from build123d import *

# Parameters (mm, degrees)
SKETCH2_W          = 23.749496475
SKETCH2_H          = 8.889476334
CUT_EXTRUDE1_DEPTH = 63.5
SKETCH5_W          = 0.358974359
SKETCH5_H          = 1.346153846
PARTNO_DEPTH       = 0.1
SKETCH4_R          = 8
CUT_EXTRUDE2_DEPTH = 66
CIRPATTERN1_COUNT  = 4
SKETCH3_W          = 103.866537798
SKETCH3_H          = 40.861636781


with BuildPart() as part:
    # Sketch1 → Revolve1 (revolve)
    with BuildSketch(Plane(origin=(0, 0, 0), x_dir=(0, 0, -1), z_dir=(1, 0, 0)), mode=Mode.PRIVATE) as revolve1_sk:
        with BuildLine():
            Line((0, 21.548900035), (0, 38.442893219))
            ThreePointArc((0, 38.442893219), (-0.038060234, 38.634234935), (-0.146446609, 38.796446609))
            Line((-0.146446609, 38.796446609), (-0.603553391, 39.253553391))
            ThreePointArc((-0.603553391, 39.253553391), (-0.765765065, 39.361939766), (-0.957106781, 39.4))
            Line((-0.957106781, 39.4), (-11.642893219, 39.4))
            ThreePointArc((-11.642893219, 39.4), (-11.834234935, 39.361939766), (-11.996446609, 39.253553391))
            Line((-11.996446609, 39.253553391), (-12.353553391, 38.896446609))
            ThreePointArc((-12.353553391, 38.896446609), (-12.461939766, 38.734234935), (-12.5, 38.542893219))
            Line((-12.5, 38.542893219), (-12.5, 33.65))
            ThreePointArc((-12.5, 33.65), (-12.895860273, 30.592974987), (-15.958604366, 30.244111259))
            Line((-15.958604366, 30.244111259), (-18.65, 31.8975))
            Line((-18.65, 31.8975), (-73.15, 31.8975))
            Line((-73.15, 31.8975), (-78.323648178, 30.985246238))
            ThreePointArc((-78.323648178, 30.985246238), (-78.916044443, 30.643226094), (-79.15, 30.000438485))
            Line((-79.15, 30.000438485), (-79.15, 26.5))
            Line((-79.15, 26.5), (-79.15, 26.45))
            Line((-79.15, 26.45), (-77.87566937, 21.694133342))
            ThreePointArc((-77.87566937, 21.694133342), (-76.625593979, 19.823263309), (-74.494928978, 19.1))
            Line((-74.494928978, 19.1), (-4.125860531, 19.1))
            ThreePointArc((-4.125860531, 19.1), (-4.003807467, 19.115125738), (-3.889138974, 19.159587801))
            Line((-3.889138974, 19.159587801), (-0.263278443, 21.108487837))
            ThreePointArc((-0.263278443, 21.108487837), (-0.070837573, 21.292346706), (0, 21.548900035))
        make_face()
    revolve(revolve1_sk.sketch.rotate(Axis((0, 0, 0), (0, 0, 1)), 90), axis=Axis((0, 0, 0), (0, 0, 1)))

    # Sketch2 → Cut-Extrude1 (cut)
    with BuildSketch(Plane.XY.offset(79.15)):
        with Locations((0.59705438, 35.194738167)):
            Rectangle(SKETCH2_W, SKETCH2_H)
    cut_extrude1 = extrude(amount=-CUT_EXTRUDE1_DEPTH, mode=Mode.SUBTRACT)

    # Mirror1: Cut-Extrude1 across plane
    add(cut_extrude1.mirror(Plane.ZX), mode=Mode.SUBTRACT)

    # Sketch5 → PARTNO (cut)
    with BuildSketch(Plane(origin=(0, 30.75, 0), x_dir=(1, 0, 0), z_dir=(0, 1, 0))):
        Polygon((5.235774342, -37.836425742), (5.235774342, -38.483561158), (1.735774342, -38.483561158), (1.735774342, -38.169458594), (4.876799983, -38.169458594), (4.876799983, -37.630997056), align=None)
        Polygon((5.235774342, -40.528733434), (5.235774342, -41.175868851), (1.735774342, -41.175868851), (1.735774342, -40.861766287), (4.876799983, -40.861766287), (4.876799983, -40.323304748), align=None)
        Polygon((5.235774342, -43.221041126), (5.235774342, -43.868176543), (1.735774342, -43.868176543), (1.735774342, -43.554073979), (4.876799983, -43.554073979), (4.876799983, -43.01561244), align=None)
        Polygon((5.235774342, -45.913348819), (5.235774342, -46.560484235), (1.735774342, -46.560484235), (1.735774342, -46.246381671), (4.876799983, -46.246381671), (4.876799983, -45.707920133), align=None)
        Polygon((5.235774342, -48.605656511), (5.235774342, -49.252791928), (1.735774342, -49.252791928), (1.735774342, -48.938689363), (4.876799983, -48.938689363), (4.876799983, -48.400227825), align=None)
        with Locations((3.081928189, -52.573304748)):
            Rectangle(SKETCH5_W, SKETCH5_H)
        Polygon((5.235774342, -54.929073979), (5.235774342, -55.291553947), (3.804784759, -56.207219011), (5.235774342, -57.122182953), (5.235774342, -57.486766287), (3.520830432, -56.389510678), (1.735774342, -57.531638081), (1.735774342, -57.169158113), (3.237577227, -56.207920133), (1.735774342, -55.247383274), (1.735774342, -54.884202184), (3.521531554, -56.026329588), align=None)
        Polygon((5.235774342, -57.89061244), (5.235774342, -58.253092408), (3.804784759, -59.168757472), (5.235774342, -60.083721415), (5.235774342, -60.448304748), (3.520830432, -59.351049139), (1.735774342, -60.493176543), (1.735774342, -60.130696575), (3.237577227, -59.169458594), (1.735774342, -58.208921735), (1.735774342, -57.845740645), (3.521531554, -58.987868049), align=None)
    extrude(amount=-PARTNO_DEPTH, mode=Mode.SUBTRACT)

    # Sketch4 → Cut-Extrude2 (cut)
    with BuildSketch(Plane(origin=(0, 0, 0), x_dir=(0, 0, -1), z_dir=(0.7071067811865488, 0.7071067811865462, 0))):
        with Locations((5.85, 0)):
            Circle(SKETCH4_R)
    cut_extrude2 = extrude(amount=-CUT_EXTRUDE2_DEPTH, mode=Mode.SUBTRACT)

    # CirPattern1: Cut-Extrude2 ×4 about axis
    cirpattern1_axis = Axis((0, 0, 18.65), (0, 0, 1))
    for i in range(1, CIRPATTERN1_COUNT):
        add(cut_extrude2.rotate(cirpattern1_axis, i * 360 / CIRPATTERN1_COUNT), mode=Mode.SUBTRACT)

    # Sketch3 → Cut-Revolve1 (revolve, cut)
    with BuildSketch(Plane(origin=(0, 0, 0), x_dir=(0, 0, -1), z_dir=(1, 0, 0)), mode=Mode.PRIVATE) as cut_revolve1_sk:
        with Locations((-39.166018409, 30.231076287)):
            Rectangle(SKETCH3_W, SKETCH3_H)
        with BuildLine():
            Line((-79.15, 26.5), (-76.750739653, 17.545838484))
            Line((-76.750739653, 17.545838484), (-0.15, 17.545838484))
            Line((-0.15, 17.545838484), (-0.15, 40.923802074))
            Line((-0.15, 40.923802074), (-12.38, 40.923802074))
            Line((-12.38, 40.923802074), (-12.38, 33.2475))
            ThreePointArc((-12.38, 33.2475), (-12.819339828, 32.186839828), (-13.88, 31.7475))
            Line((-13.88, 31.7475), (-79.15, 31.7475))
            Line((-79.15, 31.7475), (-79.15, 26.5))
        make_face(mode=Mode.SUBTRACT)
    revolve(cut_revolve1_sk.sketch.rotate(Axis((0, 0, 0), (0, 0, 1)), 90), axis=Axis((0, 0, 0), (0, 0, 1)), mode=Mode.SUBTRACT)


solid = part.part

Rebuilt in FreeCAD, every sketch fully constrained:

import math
import FreeCAD as App
import Part
import Sketcher

V = App.Vector
Q = App.Units.Quantity


def add_polygon(sketch, points):
    """Adds a closed chain of lines whose ends are joined by coincident constraints."""
    first, n = sketch.GeometryCount, len(points)
    for a, b in zip(points, points[1:] + points[:1]):
        sketch.addGeometry(Part.LineSegment(App.Vector(*a, 0), App.Vector(*b, 0)), False)
    for i in range(n):
        sketch.addConstraint(Sketcher.Constraint("Coincident", first + i, 2, first + (i + 1) % n, 1))

doc = App.newDocument("Part")
params = doc.addObject("Spreadsheet::Sheet", "Params")
for row, (alias, value) in enumerate([
    ("sketch1_radius", "1 mm"),
    ("sketch1_radius2", "0.5 mm"),
    ("sketch1_radius3", "2.5 mm"),
    ("sketch1_radius4", "3.5 mm"),
    ("sketch1_height", "54.5 mm"),
    ("revolution_angle", "360 deg"),
    ("pocket1_length", "63.5 mm"),
    ("sketch3_width", "3.5 mm"),
    ("pocket2_length", "0.1 mm"),
    ("sketch4_diameter", "16 mm"),
    ("pocket3_length", "66 mm"),
    ("sketch5_radius", "1.5 mm"),
    ("sketch5_height", "65.27 mm"),
    ("sketch5_height2", "12.23 mm"),
    ("groove_angle", "360 deg"),
], start=1):
    params.set(f"A{row}", alias)
    params.set(f"B{row}", "=" + value)
    params.setAlias(f"B{row}", alias)

body = doc.addObject("PartDesign::Body", "Body")

# Sketch on YZ plane
sketch1 = body.newObject("Sketcher::SketchObject", "Sketch")
sketch1.AttachmentSupport = (doc.getObject("YZ_Plane"), [""])
sketch1.MapMode = "FlatFace"
sketch1.addGeometry(Part.LineSegment(V(21.55, 0, 0), V(38.44, 0, 0)), False)
sketch1.addGeometry(Part.ArcOfCircle(Part.Circle(V(38.44, 0.5, 0), V(0, 0, 1), 0.5), math.radians(-90), math.radians(-45)), False)
sketch1.addGeometry(Part.LineSegment(V(38.8, 0.15, 0), V(39.25, 0.6, 0)), False)
sketch1.addGeometry(Part.ArcOfCircle(Part.Circle(V(38.9, 0.96, 0), V(0, 0, 1), 0.5), math.radians(-45), math.radians(0)), False)
sketch1.addGeometry(Part.LineSegment(V(39.4, 0.96, 0), V(39.4, 11.64, 0)), False)
sketch1.addGeometry(Part.ArcOfCircle(Part.Circle(V(38.9, 11.64, 0), V(0, 0, 1), 0.5), math.radians(0), math.radians(45)), False)
sketch1.addGeometry(Part.LineSegment(V(39.25, 12, 0), V(38.9, 12.35, 0)), False)
sketch1.addGeometry(Part.ArcOfCircle(Part.Circle(V(38.54, 12, 0), V(0, 0, 1), 0.5), math.radians(45), math.radians(90)), False)
sketch1.addGeometry(Part.LineSegment(V(38.54, 12.5, 0), V(33.65, 12.5, 0)), False)
sketch1.addGeometry(Part.ArcOfCircle(Part.Circle(V(32.37, 14.65, 0), V(0, 0, 1), 2.5), math.radians(148), math.radians(301)), False)
sketch1.addGeometry(Part.LineSegment(V(30.24, 15.96, 0), V(31.9, 18.65, 0)), False)
sketch1.addGeometry(Part.LineSegment(V(31.9, 18.65, 0), V(31.9, 73.15, 0)), False)
sketch1.addGeometry(Part.LineSegment(V(31.9, 73.15, 0), V(30.99, 78.32, 0)), False)
sketch1.addGeometry(Part.ArcOfCircle(Part.Circle(V(30, 78.15, 0), V(0, 0, 1), 1), math.radians(10), math.radians(90)), False)
sketch1.addGeometry(Part.LineSegment(V(30, 79.15, 0), V(26.45, 79.15, 0)), False)
sketch1.addGeometry(Part.LineSegment(V(26.45, 79.15, 0), V(21.69, 77.88, 0)), False)
sketch1.addGeometry(Part.ArcOfCircle(Part.Circle(V(22.6, 74.49, 0), V(0, 0, 1), 3.5), math.radians(105), math.radians(180)), False)
sketch1.addGeometry(Part.LineSegment(V(19.1, 74.49, 0), V(19.1, 4.13, 0)), False)
sketch1.addGeometry(Part.ArcOfCircle(Part.Circle(V(19.6, 4.13, 0), V(0, 0, 1), 0.5), math.radians(180), math.radians(208)), False)
sketch1.addGeometry(Part.LineSegment(V(19.16, 3.89, 0), V(21.11, 0.26, 0)), False)
sketch1.addGeometry(Part.ArcOfCircle(Part.Circle(V(21.55, 0.5, 0), V(0, 0, 1), 0.5), math.radians(-152), math.radians(-90)), False)
sketch1.addConstraint(Sketcher.Constraint("Tangent", 0, 2, 1, 1))
sketch1.addConstraint(Sketcher.Constraint("Tangent", 1, 2, 2, 1))
sketch1.addConstraint(Sketcher.Constraint("Tangent", 2, 2, 3, 1))
sketch1.addConstraint(Sketcher.Constraint("Tangent", 3, 2, 4, 1))
sketch1.addConstraint(Sketcher.Constraint("Tangent", 4, 2, 5, 1))
sketch1.addConstraint(Sketcher.Constraint("Tangent", 5, 2, 6, 1))
sketch1.addConstraint(Sketcher.Constraint("Tangent", 6, 2, 7, 1))
sketch1.addConstraint(Sketcher.Constraint("Tangent", 7, 2, 8, 1))
sketch1.addConstraint(Sketcher.Constraint("Coincident", 8, 2, 9, 2))
sketch1.addConstraint(Sketcher.Constraint("Tangent", 9, 1, 10, 1))
sketch1.addConstraint(Sketcher.Constraint("Coincident", 10, 2, 11, 1))
sketch1.addConstraint(Sketcher.Constraint("Coincident", 11, 2, 12, 1))
sketch1.addConstraint(Sketcher.Constraint("Tangent", 12, 2, 13, 1))
sketch1.addConstraint(Sketcher.Constraint("Tangent", 13, 2, 14, 1))
sketch1.addConstraint(Sketcher.Constraint("Coincident", 14, 2, 15, 1))
sketch1.addConstraint(Sketcher.Constraint("Tangent", 15, 2, 16, 1))
sketch1.addConstraint(Sketcher.Constraint("Tangent", 16, 2, 17, 1))
sketch1.addConstraint(Sketcher.Constraint("Tangent", 17, 2, 18, 1))
sketch1.addConstraint(Sketcher.Constraint("Tangent", 18, 2, 19, 1))
sketch1.addConstraint(Sketcher.Constraint("Tangent", 19, 2, 20, 1))
sketch1.addConstraint(Sketcher.Constraint("Tangent", 20, 2, 0, 1))
sketch1.addConstraint(Sketcher.Constraint("Horizontal", 0))
sketch1.addConstraint(Sketcher.Constraint("Vertical", 4))
sketch1.addConstraint(Sketcher.Constraint("Horizontal", 8))
sketch1.addConstraint(Sketcher.Constraint("Vertical", 11))
sketch1.addConstraint(Sketcher.Constraint("Horizontal", 14))
sketch1.addConstraint(Sketcher.Constraint("Vertical", 17))
sketch1.addConstraint(Sketcher.Constraint("Equal", 1, 3))
sketch1.addConstraint(Sketcher.Constraint("Equal", 3, 5))
sketch1.addConstraint(Sketcher.Constraint("Equal", 5, 7))
sketch1.addConstraint(Sketcher.Constraint("Equal", 7, 18))
sketch1.addConstraint(Sketcher.Constraint("Equal", 18, 20))
sketch1.addConstraint(Sketcher.Constraint("PointOnObject", 0, 2, -1))
sketch1.addConstraint(Sketcher.Constraint("Perpendicular", 2, 6))
sketch1.addConstraint(Sketcher.Constraint("Vertical", 2, 2, 5, 2))
sketch1.addConstraint(Sketcher.Constraint("Radius", 13, 1.0))
sketch1.addConstraint(Sketcher.Constraint("Radius", 1, 0.5))
sketch1.addConstraint(Sketcher.Constraint("Radius", 9, 2.5))
sketch1.addConstraint(Sketcher.Constraint("Radius", 16, 3.5))
sketch1.addConstraint(Sketcher.Constraint("Angle", 12, Q("100 deg")))
sketch1.addConstraint(Sketcher.Constraint("Angle", 15, Q("-165 deg")))
sketch1.addConstraint(Sketcher.Constraint("DistanceY", 11, 1, 11, 2, 54.5))
sketch1.addConstraint(Sketcher.Constraint("DistanceY", -1, 1, 7, 3, 12.0))
sketch1.addConstraint(Sketcher.Constraint("DistanceY", 9, 3, 10, 2, 4.0))
sketch1.addConstraint(Sketcher.Constraint("DistanceY", 11, 2, 13, 3, 5.0))
sketch1.addConstraint(Sketcher.Constraint("DistanceX", -1, 1, 3, 3, 38.9))
sketch1.addConstraint(Sketcher.Constraint("DistanceX", -1, 1, 16, 3, 22.6))
sketch1.addConstraint(Sketcher.Constraint("DistanceX", 1, 3, 7, 3, 0.1))
sketch1.addConstraint(Sketcher.Constraint("DistanceY", -1, 1, 9, 3, 14.65))
sketch1.addConstraint(Sketcher.Constraint("DistanceX", -1, 1, 8, 2, 33.65))
sketch1.addConstraint(Sketcher.Constraint("DistanceX", -1, 1, 14, 2, 26.45))
sketch1.addConstraint(Sketcher.Constraint("DistanceX", 14, 2, 14, 1, 3.550438))
sketch1.addConstraint(Sketcher.Constraint("DistanceY", 17, 2, 17, 1, 70.369068))
sketch1.addConstraint(Sketcher.Constraint("DistanceX", -1, 1, 20, 3, 21.5489))
sketch1.addConstraint(Sketcher.Constraint("DistanceX", 0, 1, 0, 2, 16.893993))
sketch1.setExpression("Constraints[35]", "Params.sketch1_radius")
sketch1.setExpression("Constraints[36]", "Params.sketch1_radius2")
sketch1.setExpression("Constraints[37]", "Params.sketch1_radius3")
sketch1.setExpression("Constraints[38]", "Params.sketch1_radius4")
sketch1.setExpression("Constraints[41]", "Params.sketch1_height")
revolution = body.newObject("PartDesign::Revolution", "Revolution")
revolution.Profile = sketch1
revolution.ReferenceAxis = (sketch1, ["V_Axis"])
revolution.setExpression("Angle", "Params.revolution_angle")

# Sketch on XY plane
sketch2 = body.newObject("Sketcher::SketchObject", "Sketch001")
sketch2.AttachmentSupport = (doc.getObject("XY_Plane"), [""])
sketch2.MapMode = "FlatFace"
sketch2.AttachmentOffset = App.Placement(V(0, 0, 79.15), App.Rotation())
add_polygon(sketch2, [(-11, 40), (-11, 31), (12, 31), (12, 40)])  # lines 0-3
sketch2.addConstraint(Sketcher.Constraint("Vertical", 0))
sketch2.addConstraint(Sketcher.Constraint("Horizontal", 1))
sketch2.addConstraint(Sketcher.Constraint("Vertical", 2))
sketch2.addConstraint(Sketcher.Constraint("Horizontal", 3))
sketch2.addConstraint(Sketcher.Constraint("DistanceY", -1, 1, 0, 2, 30.75))
sketch2.addConstraint(Sketcher.Constraint("DistanceX", 1, 1, 1, 2, 23.749496))
sketch2.addConstraint(Sketcher.Constraint("DistanceY", 0, 2, 0, 1, 8.889476))
sketch2.addConstraint(Sketcher.Constraint("DistanceX", 0, 2, -1, 1, 11.277694))
pocket1 = body.newObject("PartDesign::Pocket", "Pocket")
pocket1.Profile = sketch2
pocket1.setExpression("Length", "Params.pocket1_length")
doc.recompute()

mirrored = body.newObject("PartDesign::Mirrored", "Mirrored")
mirrored.Originals = [pocket1]
mirrored.MirrorPlane = (doc.getObject("XZ_Plane"), [""])
body.Tip = mirrored

# Sketch on XZ plane
sketch3 = body.newObject("Sketcher::SketchObject", "Sketch002")
sketch3.AttachmentSupport = (doc.getObject("XZ_Plane"), [""])
sketch3.MapMode = "FlatFace"
sketch3.AttachmentOffset = App.Placement(V(0, 0, -30.75), App.Rotation())
add_polygon(sketch3, [(5.24, 38.48), (5.24, 37.84), (4.88, 37.63), (4.88, 38.17), (1.74, 38.17), (1.74, 38.48)])  # lines 0-5
add_polygon(sketch3, [(5.24, 41.18), (5.24, 40.53), (4.88, 40.32), (4.88, 40.86), (1.74, 40.86), (1.74, 41.18)])  # lines 6-11
add_polygon(sketch3, [(5.24, 43.87), (5.24, 43.22), (4.88, 43.02), (4.88, 43.55), (1.74, 43.55), (1.74, 43.87)])  # lines 12-17
add_polygon(sketch3, [(5.24, 46.56), (5.24, 45.91), (4.88, 45.71), (4.88, 46.25), (1.74, 46.25), (1.74, 46.56)])  # lines 18-23
add_polygon(sketch3, [(5.24, 49.25), (5.24, 48.61), (4.88, 48.4), (4.88, 48.94), (1.74, 48.94), (1.74, 49.25)])  # lines 24-29
add_polygon(sketch3, [(2.9, 51.9), (2.9, 53.25), (3.26, 53.25), (3.26, 51.9)])  # lines 30-33
add_polygon(sketch3, [(5.24, 55.29), (5.24, 54.93), (3.52, 56.03), (1.74, 54.88), (1.74, 55.25), (3.24, 56.21), (1.74, 57.17), (1.74, 57.53), (3.52, 56.39), (5.24, 57.49), (5.24, 57.12), (3.8, 56.21)])  # lines 34-45
add_polygon(sketch3, [(5.24, 58.25), (5.24, 57.89), (3.52, 58.99), (1.74, 57.85), (1.74, 58.21), (3.24, 59.17), (1.74, 60.13), (1.74, 60.49), (3.52, 59.35), (5.24, 60.45), (5.24, 60.08), (3.8, 59.17)])  # lines 46-57
sketch3.addConstraint(Sketcher.Constraint("Vertical", 0))
sketch3.addConstraint(Sketcher.Constraint("Vertical", 2))
sketch3.addConstraint(Sketcher.Constraint("Horizontal", 3))
sketch3.addConstraint(Sketcher.Constraint("Vertical", 4))
sketch3.addConstraint(Sketcher.Constraint("Horizontal", 5))
sketch3.addConstraint(Sketcher.Constraint("Vertical", 6))
sketch3.addConstraint(Sketcher.Constraint("Vertical", 8))
sketch3.addConstraint(Sketcher.Constraint("Horizontal", 9))
sketch3.addConstraint(Sketcher.Constraint("Vertical", 10))
sketch3.addConstraint(Sketcher.Constraint("Horizontal", 11))
sketch3.addConstraint(Sketcher.Constraint("Vertical", 12))
sketch3.addConstraint(Sketcher.Constraint("Vertical", 14))
sketch3.addConstraint(Sketcher.Constraint("Horizontal", 15))
sketch3.addConstraint(Sketcher.Constraint("Vertical", 16))
sketch3.addConstraint(Sketcher.Constraint("Horizontal", 17))
sketch3.addConstraint(Sketcher.Constraint("Vertical", 18))
sketch3.addConstraint(Sketcher.Constraint("Vertical", 20))
sketch3.addConstraint(Sketcher.Constraint("Horizontal", 21))
sketch3.addConstraint(Sketcher.Constraint("Vertical", 22))
sketch3.addConstraint(Sketcher.Constraint("Horizontal", 23))
sketch3.addConstraint(Sketcher.Constraint("Vertical", 24))
sketch3.addConstraint(Sketcher.Constraint("Vertical", 26))
sketch3.addConstraint(Sketcher.Constraint("Horizontal", 27))
sketch3.addConstraint(Sketcher.Constraint("Vertical", 28))
sketch3.addConstraint(Sketcher.Constraint("Horizontal", 29))
sketch3.addConstraint(Sketcher.Constraint("Vertical", 30))
sketch3.addConstraint(Sketcher.Constraint("Horizontal", 31))
sketch3.addConstraint(Sketcher.Constraint("Vertical", 32))
sketch3.addConstraint(Sketcher.Constraint("Horizontal", 33))
sketch3.addConstraint(Sketcher.Constraint("Vertical", 34))
sketch3.addConstraint(Sketcher.Constraint("Vertical", 37))
sketch3.addConstraint(Sketcher.Constraint("Vertical", 40))
sketch3.addConstraint(Sketcher.Constraint("Vertical", 43))
sketch3.addConstraint(Sketcher.Constraint("Vertical", 46))
sketch3.addConstraint(Sketcher.Constraint("Vertical", 49))
sketch3.addConstraint(Sketcher.Constraint("Vertical", 52))
sketch3.addConstraint(Sketcher.Constraint("Vertical", 55))
sketch3.addConstraint(Sketcher.Constraint("Parallel", 1, 7))
sketch3.addConstraint(Sketcher.Constraint("Parallel", 7, 13))
sketch3.addConstraint(Sketcher.Constraint("Parallel", 13, 19))
sketch3.addConstraint(Sketcher.Constraint("Parallel", 19, 25))
sketch3.addConstraint(Sketcher.Constraint("Parallel", 35, 47))
sketch3.addConstraint(Sketcher.Constraint("Parallel", 36, 48))
sketch3.addConstraint(Sketcher.Constraint("Parallel", 38, 50))
sketch3.addConstraint(Sketcher.Constraint("Parallel", 39, 51))
sketch3.addConstraint(Sketcher.Constraint("Parallel", 41, 53))
sketch3.addConstraint(Sketcher.Constraint("Parallel", 42, 54))
sketch3.addConstraint(Sketcher.Constraint("Parallel", 44, 56))
sketch3.addConstraint(Sketcher.Constraint("Parallel", 45, 57))
sketch3.addConstraint(Sketcher.Constraint("Vertical", 5, 2, 6, 2))
sketch3.addConstraint(Sketcher.Constraint("Vertical", 2, 2, 7, 2))
sketch3.addConstraint(Sketcher.Constraint("Vertical", 4, 2, 9, 2))
sketch3.addConstraint(Sketcher.Constraint("Vertical", 11, 2, 12, 2))
sketch3.addConstraint(Sketcher.Constraint("Vertical", 8, 2, 13, 2))
sketch3.addConstraint(Sketcher.Constraint("Vertical", 10, 2, 15, 2))
sketch3.addConstraint(Sketcher.Constraint("Vertical", 17, 2, 18, 2))
sketch3.addConstraint(Sketcher.Constraint("Vertical", 14, 2, 19, 2))
sketch3.addConstraint(Sketcher.Constraint("Vertical", 16, 2, 21, 2))
sketch3.addConstraint(Sketcher.Constraint("Vertical", 23, 2, 24, 2))
sketch3.addConstraint(Sketcher.Constraint("Vertical", 20, 2, 25, 2))
sketch3.addConstraint(Sketcher.Constraint("Vertical", 22, 2, 27, 2))
sketch3.addConstraint(Sketcher.Constraint("Vertical", 29, 2, 34, 2))
sketch3.addConstraint(Sketcher.Constraint("Vertical", 28, 2, 36, 2))
sketch3.addConstraint(Sketcher.Constraint("Vertical", 37, 2, 39, 2))
sketch3.addConstraint(Sketcher.Constraint("Vertical", 34, 2, 42, 2))
sketch3.addConstraint(Sketcher.Constraint("Vertical", 45, 2, 46, 2))
sketch3.addConstraint(Sketcher.Constraint("Vertical", 35, 2, 47, 2))
sketch3.addConstraint(Sketcher.Constraint("Vertical", 40, 2, 48, 2))
sketch3.addConstraint(Sketcher.Constraint("Vertical", 38, 2, 50, 2))
sketch3.addConstraint(Sketcher.Constraint("Vertical", 49, 2, 51, 2))
sketch3.addConstraint(Sketcher.Constraint("Vertical", 41, 2, 53, 2))
sketch3.addConstraint(Sketcher.Constraint("Vertical", 46, 2, 54, 2))
sketch3.addConstraint(Sketcher.Constraint("Vertical", 44, 2, 56, 2))
sketch3.addConstraint(Sketcher.Constraint("Equal", 0, 6))
sketch3.addConstraint(Sketcher.Constraint("Equal", 2, 8))
sketch3.addConstraint(Sketcher.Constraint("Equal", 6, 12))
sketch3.addConstraint(Sketcher.Constraint("Equal", 8, 14))
sketch3.addConstraint(Sketcher.Constraint("Equal", 12, 18))
sketch3.addConstraint(Sketcher.Constraint("Equal", 14, 20))
sketch3.addConstraint(Sketcher.Constraint("Equal", 18, 24))
sketch3.addConstraint(Sketcher.Constraint("Equal", 20, 26))
sketch3.addConstraint(Sketcher.Constraint("Equal", 34, 40))
sketch3.addConstraint(Sketcher.Constraint("Equal", 40, 46))
sketch3.addConstraint(Sketcher.Constraint("Equal", 37, 49))
sketch3.addConstraint(Sketcher.Constraint("Equal", 46, 52))
sketch3.addConstraint(Sketcher.Constraint("DistanceX", 5, 1, 5, 2, 3.5))
sketch3.addConstraint(Sketcher.Constraint("DistanceY", 30, 2, 37, 2, 2.001002))
sketch3.addConstraint(Sketcher.Constraint("DistanceY", 38, 2, 49, 2, 2.001002))
sketch3.addConstraint(Sketcher.Constraint("Distance", 1, 0.413598))
sketch3.addConstraint(Sketcher.Constraint("DistanceY", 2, 1, 2, 2, 0.538462))
sketch3.addConstraint(Sketcher.Constraint("DistanceY", 34, 2, 34, 1, 0.36248))
sketch3.addConstraint(Sketcher.Constraint("DistanceY", 37, 1, 37, 2, 0.363181))
sketch3.addConstraint(Sketcher.Constraint("DistanceX", -1, 1, 1, 2, 4.8768))
sketch3.addConstraint(Sketcher.Constraint("DistanceY", 32, 2, 35, 2, 4.126102))
sketch3.addConstraint(Sketcher.Constraint("DistanceX", 41, 2, 35, 2, 0.000701))
sketch3.addConstraint(Sketcher.Constraint("DistanceY", 44, 2, 38, 2, 0.000701))
sketch3.addConstraint(Sketcher.Constraint("DistanceY", 41, 2, 46, 2, 1.501102))
sketch3.addConstraint(Sketcher.Constraint("DistanceY", 42, 2, 47, 2, 1.501102))
sketch3.addConstraint(Sketcher.Constraint("Distance", 36, 2.11976))
sketch3.addConstraint(Sketcher.Constraint("Distance", 41, 2.11917))
sketch3.addConstraint(Sketcher.Constraint("DistanceX", 3, 2, 3, 1, 3.141026))
sketch3.addConstraint(Sketcher.Constraint("DistanceX", 31, 1, 31, 2, 0.358974))
sketch3.addConstraint(Sketcher.Constraint("DistanceY", 0, 2, 0, 1, 0.647135))
sketch3.addConstraint(Sketcher.Constraint("DistanceY", 30, 1, 30, 2, 1.346154))
sketch3.addConstraint(Sketcher.Constraint("DistanceY", 43, 2, 43, 1, 0.364583))
sketch3.addConstraint(Sketcher.Constraint("DistanceY", -1, 1, 2, 2, 38.169459))
sketch3.addConstraint(Sketcher.Constraint("DistanceY", -1, 1, 10, 2, 41.175869))
sketch3.addConstraint(Sketcher.Constraint("DistanceY", -1, 1, 12, 2, 43.221041))
sketch3.addConstraint(Sketcher.Constraint("DistanceY", -1, 1, 18, 2, 45.913349))
sketch3.addConstraint(Sketcher.Constraint("DistanceY", -1, 1, 26, 2, 48.938689))
sketch3.addConstraint(Sketcher.Constraint("DistanceX", -1, 1, 30, 2, 2.902441))
sketch3.addConstraint(Sketcher.Constraint("DistanceY", -1, 1, 30, 2, 53.246382))
sketch3.addConstraint(Sketcher.Constraint("DistanceY", -1, 1, 38, 2, 56.20792))
sketch3.addConstraint(Sketcher.Constraint("DistanceY", -1, 1, 39, 2, 57.169158))
sketch3.addConstraint(Sketcher.Constraint("DistanceX", 38, 2, 31, 2, 0.023838))
sketch3.addConstraint(Sketcher.Constraint("DistanceX", 44, 2, 43, 2, 1.43099))
sketch3.setExpression("Constraints[143]", "Params.sketch3_width")
pocket2 = body.newObject("PartDesign::Pocket", "Pocket001")
pocket2.Profile = sketch3
pocket2.setExpression("Length", "Params.pocket2_length")
pocket2.Reversed = True

# Sketch on an angled plane
sketch4 = body.newObject("Sketcher::SketchObject", "Sketch003")
sketch4.Placement = App.Placement(V(0, 0, 0), App.Rotation(V(0, 0, -1), V(-0.707106781, 0.707106781, 0), V(0.707106781, 0.707106781, 0), "ZXY"))
sketch4.addGeometry(Part.Circle(V(6, 0, 0), V(0, 0, 1), 8), False)
sketch4.addConstraint(Sketcher.Constraint("PointOnObject", 0, 3, -1))
sketch4.addConstraint(Sketcher.Constraint("Diameter", 0, 16.0))
sketch4.addConstraint(Sketcher.Constraint("DistanceX", -1, 1, 0, 3, 5.85))
sketch4.setExpression("Constraints[1]", "Params.sketch4_diameter")
pocket3 = body.newObject("PartDesign::Pocket", "Pocket002")
pocket3.Profile = sketch4
pocket3.setExpression("Length", "Params.pocket3_length")
doc.recompute()

polarpattern = body.newObject("PartDesign::PolarPattern", "PolarPattern")
polarpattern.Originals = [pocket3]
polarpattern.Axis = (doc.getObject("Z_Axis"), [""])
polarpattern.Angle = 360
polarpattern.Occurrences = 4
body.Tip = polarpattern

# Sketch on YZ plane
sketch5 = body.newObject("Sketcher::SketchObject", "Sketch004")
sketch5.AttachmentSupport = (doc.getObject("YZ_Plane"), [""])
sketch5.MapMode = "FlatFace"
add_polygon(sketch5, [(50.7, 91.1), (9.8, 91.1), (9.8, -12.8), (50.7, -12.8)])  # lines 0-3
sketch5.addGeometry(Part.LineSegment(V(17.5, 76.8, 0), V(26.5, 79.2, 0)), False)  # 4
sketch5.addGeometry(Part.LineSegment(V(26.5, 79.2, 0), V(31.7, 79.2, 0)), False)  # 5
sketch5.addGeometry(Part.LineSegment(V(31.7, 79.2, 0), V(31.7, 13.9, 0)), False)  # 6
sketch5.addGeometry(Part.ArcOfCircle(Part.Circle(V(33.2, 13.9, 0), V(0, 0, 1), 1.5), math.radians(180), math.radians(270)), False)  # 7
sketch5.addGeometry(Part.LineSegment(V(33.2, 12.4, 0), V(40.9, 12.4, 0)), False)  # 8
sketch5.addGeometry(Part.LineSegment(V(40.9, 12.4, 0), V(40.9, 0.1, 0)), False)  # 9
sketch5.addGeometry(Part.LineSegment(V(40.9, 0.1, 0), V(17.5, 0.1, 0)), False)  # 10
sketch5.addGeometry(Part.LineSegment(V(17.5, 0.1, 0), V(17.5, 76.8, 0)), False)  # 11
sketch5.addConstraint(Sketcher.Constraint("Coincident", 4, 2, 5, 1))
sketch5.addConstraint(Sketcher.Constraint("Coincident", 5, 2, 6, 1))
sketch5.addConstraint(Sketcher.Constraint("Tangent", 6, 2, 7, 1))
sketch5.addConstraint(Sketcher.Constraint("Tangent", 7, 2, 8, 1))
sketch5.addConstraint(Sketcher.Constraint("Coincident", 8, 2, 9, 1))
sketch5.addConstraint(Sketcher.Constraint("Coincident", 9, 2, 10, 1))
sketch5.addConstraint(Sketcher.Constraint("Coincident", 10, 2, 11, 1))
sketch5.addConstraint(Sketcher.Constraint("Coincident", 11, 2, 4, 1))
sketch5.addConstraint(Sketcher.Constraint("Horizontal", 0))
sketch5.addConstraint(Sketcher.Constraint("Vertical", 1))
sketch5.addConstraint(Sketcher.Constraint("Horizontal", 2))
sketch5.addConstraint(Sketcher.Constraint("Vertical", 3))
sketch5.addConstraint(Sketcher.Constraint("Horizontal", 5))
sketch5.addConstraint(Sketcher.Constraint("Vertical", 6))
sketch5.addConstraint(Sketcher.Constraint("Horizontal", 8))
sketch5.addConstraint(Sketcher.Constraint("Vertical", 9))
sketch5.addConstraint(Sketcher.Constraint("Horizontal", 10))
sketch5.addConstraint(Sketcher.Constraint("Vertical", 11))
sketch5.addConstraint(Sketcher.Constraint("Radius", 7, 1.5))
sketch5.addConstraint(Sketcher.Constraint("Angle", 4, Q("15 deg")))
sketch5.addConstraint(Sketcher.Constraint("DistanceY", 6, 2, 6, 1, 65.27))
sketch5.addConstraint(Sketcher.Constraint("DistanceY", 9, 2, 9, 1, 12.23))
sketch5.addConstraint(Sketcher.Constraint("DistanceX", -1, 1, 4, 2, 26.5))
sketch5.addConstraint(Sketcher.Constraint("DistanceY", -1, 1, 7, 3, 13.88))
sketch5.addConstraint(Sketcher.Constraint("DistanceX", 5, 1, 5, 2, 5.2475))
sketch5.addConstraint(Sketcher.Constraint("DistanceY", 11, 1, 11, 2, 76.60074))
sketch5.addConstraint(Sketcher.Constraint("DistanceX", 0, 2, 0, 1, 40.861637))
sketch5.addConstraint(Sketcher.Constraint("DistanceX", 8, 1, 8, 2, 7.676302))
sketch5.addConstraint(Sketcher.Constraint("DistanceY", 1, 2, 1, 1, 103.866538))
sketch5.addConstraint(Sketcher.Constraint("DistanceY", 1, 2, -1, 1, 12.76725))
sketch5.addConstraint(Sketcher.Constraint("DistanceX", 1, 2, 10, 2, 7.745581))
sketch5.setExpression("Constraints[22]", "Params.sketch5_radius")
sketch5.setExpression("Constraints[24]", "Params.sketch5_height")
sketch5.setExpression("Constraints[25]", "Params.sketch5_height2")
groove = body.newObject("PartDesign::Groove", "Groove")
groove.Profile = sketch5
groove.ReferenceAxis = (sketch5, ["V_Axis"])
groove.setExpression("Angle", "Params.groove_angle")

doc.recompute()
